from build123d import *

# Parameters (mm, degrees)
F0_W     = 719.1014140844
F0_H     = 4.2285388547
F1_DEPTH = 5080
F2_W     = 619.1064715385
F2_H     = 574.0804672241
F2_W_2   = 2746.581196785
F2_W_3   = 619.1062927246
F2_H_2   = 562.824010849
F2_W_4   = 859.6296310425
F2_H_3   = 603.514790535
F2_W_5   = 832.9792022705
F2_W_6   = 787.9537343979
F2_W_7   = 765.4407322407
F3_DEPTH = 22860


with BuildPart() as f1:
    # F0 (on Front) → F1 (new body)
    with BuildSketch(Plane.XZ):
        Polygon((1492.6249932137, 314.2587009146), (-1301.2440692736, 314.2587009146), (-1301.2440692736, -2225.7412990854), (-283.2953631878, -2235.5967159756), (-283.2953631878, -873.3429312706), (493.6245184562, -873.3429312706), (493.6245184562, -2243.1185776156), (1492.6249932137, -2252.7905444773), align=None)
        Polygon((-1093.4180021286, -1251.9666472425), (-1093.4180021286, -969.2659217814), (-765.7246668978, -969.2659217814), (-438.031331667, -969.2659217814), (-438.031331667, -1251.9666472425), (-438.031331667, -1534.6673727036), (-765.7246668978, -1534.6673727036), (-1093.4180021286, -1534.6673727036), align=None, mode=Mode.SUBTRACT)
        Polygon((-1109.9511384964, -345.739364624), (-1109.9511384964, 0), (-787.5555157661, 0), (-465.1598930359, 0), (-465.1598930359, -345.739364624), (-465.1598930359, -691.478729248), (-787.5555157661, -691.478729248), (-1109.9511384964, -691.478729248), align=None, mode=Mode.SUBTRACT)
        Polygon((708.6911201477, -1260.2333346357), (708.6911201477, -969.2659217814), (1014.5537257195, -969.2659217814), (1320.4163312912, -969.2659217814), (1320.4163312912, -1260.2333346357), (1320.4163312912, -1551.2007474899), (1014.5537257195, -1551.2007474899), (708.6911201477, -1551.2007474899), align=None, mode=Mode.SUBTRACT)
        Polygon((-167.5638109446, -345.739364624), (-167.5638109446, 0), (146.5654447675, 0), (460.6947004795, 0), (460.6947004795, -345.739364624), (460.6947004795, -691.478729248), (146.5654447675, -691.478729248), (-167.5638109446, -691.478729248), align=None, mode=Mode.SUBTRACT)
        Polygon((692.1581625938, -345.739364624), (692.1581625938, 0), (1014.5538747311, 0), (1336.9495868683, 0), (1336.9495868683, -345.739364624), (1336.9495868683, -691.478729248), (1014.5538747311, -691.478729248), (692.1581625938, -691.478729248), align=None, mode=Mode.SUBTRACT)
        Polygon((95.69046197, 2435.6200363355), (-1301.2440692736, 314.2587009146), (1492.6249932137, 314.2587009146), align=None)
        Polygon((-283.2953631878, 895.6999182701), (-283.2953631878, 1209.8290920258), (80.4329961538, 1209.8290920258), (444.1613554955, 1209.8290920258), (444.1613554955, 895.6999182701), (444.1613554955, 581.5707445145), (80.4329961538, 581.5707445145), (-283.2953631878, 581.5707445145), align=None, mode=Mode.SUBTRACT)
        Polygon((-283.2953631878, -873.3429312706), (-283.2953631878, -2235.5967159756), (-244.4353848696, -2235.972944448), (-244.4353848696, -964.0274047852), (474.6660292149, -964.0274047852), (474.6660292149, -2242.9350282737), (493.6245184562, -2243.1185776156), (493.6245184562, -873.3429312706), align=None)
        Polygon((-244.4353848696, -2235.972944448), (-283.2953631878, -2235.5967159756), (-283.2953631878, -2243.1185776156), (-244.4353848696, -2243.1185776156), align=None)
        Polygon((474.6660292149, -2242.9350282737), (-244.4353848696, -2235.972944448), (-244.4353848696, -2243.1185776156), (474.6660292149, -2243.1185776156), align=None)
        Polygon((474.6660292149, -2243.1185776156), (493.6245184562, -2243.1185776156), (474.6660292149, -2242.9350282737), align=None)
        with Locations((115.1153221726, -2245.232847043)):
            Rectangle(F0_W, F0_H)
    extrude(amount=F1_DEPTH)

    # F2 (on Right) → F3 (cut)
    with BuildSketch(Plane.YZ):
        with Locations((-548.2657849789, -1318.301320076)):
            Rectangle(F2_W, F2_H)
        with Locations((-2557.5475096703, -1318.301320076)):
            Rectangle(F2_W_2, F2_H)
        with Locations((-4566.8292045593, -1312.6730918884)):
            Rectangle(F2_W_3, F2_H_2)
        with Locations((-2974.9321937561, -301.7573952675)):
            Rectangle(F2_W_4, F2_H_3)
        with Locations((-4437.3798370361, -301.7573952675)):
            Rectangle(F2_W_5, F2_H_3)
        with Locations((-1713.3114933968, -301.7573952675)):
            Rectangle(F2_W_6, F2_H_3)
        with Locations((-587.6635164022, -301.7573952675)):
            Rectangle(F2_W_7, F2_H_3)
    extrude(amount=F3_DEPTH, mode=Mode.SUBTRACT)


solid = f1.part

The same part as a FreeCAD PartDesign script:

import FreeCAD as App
import Part
import Sketcher

V = App.Vector
Q = App.Units.Quantity


def add_polygon(sketch, points):
    """Adds a closed chain of lines whose ends are joined by coincident constraints."""
    first, n = sketch.GeometryCount, len(points)
    for a, b in zip(points, points[1:] + points[:1]):
        sketch.addGeometry(Part.LineSegment(App.Vector(*a, 0), App.Vector(*b, 0)), False)
    for i in range(n):
        sketch.addConstraint(Sketcher.Constraint("Coincident", first + i, 2, first + (i + 1) % n, 1))

doc = App.newDocument("Part")
body = doc.addObject("PartDesign::Body", "Body")

# Sketch on XZ plane
sketch1 = body.newObject("Sketcher::SketchObject", "Sketch")
sketch1.AttachmentSupport = (doc.getObject("XZ_Plane"), [""])
sketch1.MapMode = "FlatFace"
add_polygon(sketch1, [(-283.3, -2243.1), (-244.4, -2243.1), (-244.4, -2247.3), (474.7, -2247.3), (474.7, -2243.1), (493.6, -2243.1), (1492.6, -2252.8), (1492.6, 314.3), (95.7, 2435.6), (-1301.2, 314.3), (-1301.2, -2225.7), (-283.3, -2235.6)])  # lines 0-11
add_polygon(sketch1, [(-1093.4, -1534.7), (-1093.4, -969.3), (-438, -969.3), (-438, -1534.7)])  # lines 12-15
add_polygon(sketch1, [(474.7, -964), (474.7, -2242.9), (-244.4, -2236), (-244.4, -964)])  # lines 16-19
add_polygon(sketch1, [(708.7, -1551.2), (708.7, -969.3), (1320.4, -969.3), (1320.4, -1551.2)])  # lines 20-23
add_polygon(sketch1, [(-1110, -691.5), (-1110, 0), (-465.2, 0), (-465.2, -691.5)])  # lines 24-27
add_polygon(sketch1, [(-283.3, 581.6), (-283.3, 1209.8), (444.2, 1209.8), (444.2, 581.6)])  # lines 28-31
add_polygon(sketch1, [(-167.6, -691.5), (-167.6, 0), (460.7, 0), (460.7, -691.5)])  # lines 32-35
add_polygon(sketch1, [(692.2, -691.5), (692.2, 0), (1336.9, 0), (1336.9, -691.5)])  # lines 36-39
sketch1.addConstraint([
    Sketcher.Constraint("Horizontal", 0),
    Sketcher.Constraint("Vertical", 1),
    Sketcher.Constraint("Horizontal", 2),
    Sketcher.Constraint("Vertical", 3),
    Sketcher.Constraint("Horizontal", 4),
    Sketcher.Constraint("Vertical", 6),
    Sketcher.Constraint("Vertical", 9),
    Sketcher.Constraint("Vertical", 11),
    Sketcher.Constraint("Vertical", 12),
    Sketcher.Constraint("Horizontal", 13),
    Sketcher.Constraint("Vertical", 14),
    Sketcher.Constraint("Horizontal", 15),
    Sketcher.Constraint("Vertical", 16),
    Sketcher.Constraint("Vertical", 18),
    Sketcher.Constraint("Horizontal", 19),
    Sketcher.Constraint("Vertical", 20),
    Sketcher.Constraint("Horizontal", 21),
    Sketcher.Constraint("Vertical", 22),
    Sketcher.Constraint("Horizontal", 23),
    Sketcher.Constraint("Vertical", 24),
    Sketcher.Constraint("Horizontal", 25),
    Sketcher.Constraint("Vertical", 26),
    Sketcher.Constraint("Horizontal", 27),
    Sketcher.Constraint("Vertical", 28),
    Sketcher.Constraint("Horizontal", 29),
    Sketcher.Constraint("Vertical", 30),
    Sketcher.Constraint("Horizontal", 31),
    Sketcher.Constraint("Vertical", 32),
    Sketcher.Constraint("Horizontal", 33),
    Sketcher.Constraint("Vertical", 34),
    Sketcher.Constraint("Horizontal", 35),
    Sketcher.Constraint("Vertical", 36),
    Sketcher.Constraint("Horizontal", 37),
    Sketcher.Constraint("Vertical", 38),
    Sketcher.Constraint("Horizontal", 39),
    Sketcher.Constraint("PointOnObject", 24, 2, -1),
    Sketcher.Constraint("PointOnObject", 32, 2, -1),
    Sketcher.Constraint("PointOnObject", 36, 2, -1),
    Sketcher.Constraint("Parallel", 5, 10),
    Sketcher.Constraint("Parallel", 10, 17),
    Sketcher.Constraint("Horizontal", 0, 2, 3, 2),
    Sketcher.Constraint("Horizontal", 6, 2, 8, 2),
    Sketcher.Constraint("Horizontal", 13, 2, 20, 2),
    Sketcher.Constraint("Horizontal", 27, 2, 34, 2),
    Sketcher.Constraint("Horizontal", 35, 2, 38, 2),
    Sketcher.Constraint("Vertical", 3, 2, 16, 2),
    Sketcher.Constraint("Vertical", 1, 2, 17, 2),
    Sketcher.Constraint("Vertical", 11, 2, 28, 2),
    Sketcher.Constraint("Equal", 7, 8),
    Sketcher.Constraint("DistanceY", 9, 2, 9, 1, Q("100 in")),
    Sketcher.Constraint("Distance", 7, Q("100 in")),
    Sketcher.Constraint("DistanceX", 8, 2, 25, 2, Q("32.9166999 in")),
    Sketcher.Constraint("DistanceX", 0, 1, 0, 2, Q("38.859978 mm")),
    Sketcher.Constraint("DistanceX", 4, 1, 4, 2, Q("18.958489 mm")),
    Sketcher.Constraint("DistanceX", 13, 1, 13, 2, Q("655.38667 mm")),
    Sketcher.Constraint("DistanceX", 21, 1, 21, 2, Q("611.725211 mm")),
    Sketcher.Constraint("DistanceX", 29, 1, 29, 2, Q("727.456719 mm")),
    Sketcher.Constraint("DistanceX", 33, 1, 33, 2, Q("628.258511 mm")),
    Sketcher.Constraint("DistanceY", 1, 2, 1, 1, Q("4.228539 mm")),
    Sketcher.Constraint("DistanceY", 11, 2, 11, 1, Q("7.521862 mm")),
    Sketcher.Constraint("DistanceY", 12, 1, 12, 2, Q("565.401451 mm")),
    Sketcher.Constraint("DistanceY", 18, 1, 18, 2, Q("1271.94554 mm")),
    Sketcher.Constraint("DistanceY", 24, 1, 24, 2, Q("691.478729 mm")),
    Sketcher.Constraint("DistanceY", -1, 1, 6, 2, Q("314.258701 mm")),
    Sketcher.Constraint("DistanceX", -1, 1, 33, 2, Q("460.6947 mm")),
    Sketcher.Constraint("DistanceX", 8, 2, 3, 2, Q("1775.910098 mm")),
    Sketcher.Constraint("DistanceX", 4, 2, 20, 2, Q("215.066602 mm")),
    Sketcher.Constraint("DistanceX", 2, 1, 2, 2, Q("719.101414 mm")),
    Sketcher.Constraint("DistanceX", 25, 1, 25, 2, Q("644.791245 mm")),
    Sketcher.Constraint("DistanceX", 37, 1, 37, 2, Q("644.791424 mm")),
    Sketcher.Constraint("DistanceY", 6, 1, 6, 2, Q("2567.049245 mm")),
    Sketcher.Constraint("DistanceY", 20, 1, 20, 2, Q("581.934826 mm")),
    Sketcher.Constraint("DistanceY", 28, 1, 28, 2, Q("628.258348 mm")),
    Sketcher.Constraint("DistanceX", -1, 1, 2, 2, Q("474.666029 mm")),
    Sketcher.Constraint("DistanceX", -1, 1, 7, 2, Q("95.690462 mm")),
    Sketcher.Constraint("DistanceY", 12, 2, -1, 1, Q("969.265922 mm")),
    Sketcher.Constraint("DistanceX", 13, 2, -1, 1, Q("438.031332 mm")),
    Sketcher.Constraint("DistanceY", 16, 2, -1, 1, Q("2242.935028 mm")),
    Sketcher.Constraint("DistanceY", 8, 2, 28, 2, Q("895.570391 mm")),
    Sketcher.Constraint("DistanceX", 36, 2, 6, 2, Q("800.466831 mm")),
])
pad1 = body.newObject("PartDesign::Pad", "Pad")
pad1.Profile = sketch1
pad1.Length = Q("200 in")

# Sketch on YZ plane
sketch2 = body.newObject("Sketcher::SketchObject", "Sketch001")
sketch2.AttachmentSupport = (doc.getObject("YZ_Plane"), [""])
sketch2.MapMode = "FlatFace"
add_polygon(sketch2, [(-858, -1031), (-858, -1605), (-239, -1605), (-239, -1031)])  # lines 0-3
add_polygon(sketch2, [(-3931, -1031), (-3931, -1605), (-1184, -1605), (-1184, -1031)])  # lines 4-7
add_polygon(sketch2, [(-4876, -1031), (-4876, -1594), (-4257, -1594), (-4257, -1031)])  # lines 8-11
add_polygon(sketch2, [(-3405, 0), (-3405, -604), (-2545, -604), (-2545, 0)])  # lines 12-15
add_polygon(sketch2, [(-4854, 0), (-4854, -604), (-4021, -604), (-4021, 0)])  # lines 16-19
add_polygon(sketch2, [(-2107, 0), (-2107, -604), (-1319, -604), (-1319, 0)])  # lines 20-23
add_polygon(sketch2, [(-970, 0), (-970, -604), (-205, -604), (-205, 0)])  # lines 24-27
sketch2.addConstraint([
    Sketcher.Constraint("Vertical", 0),
    Sketcher.Constraint("Horizontal", 1),
    Sketcher.Constraint("Vertical", 2),
    Sketcher.Constraint("Horizontal", 3),
    Sketcher.Constraint("Vertical", 4),
    Sketcher.Constraint("Horizontal", 5),
    Sketcher.Constraint("Vertical", 6),
    Sketcher.Constraint("Horizontal", 7),
    Sketcher.Constraint("Vertical", 8),
    Sketcher.Constraint("Horizontal", 9),
    Sketcher.Constraint("Vertical", 10),
    Sketcher.Constraint("Horizontal", 11),
    Sketcher.Constraint("Vertical", 12),
    Sketcher.Constraint("Horizontal", 13),
    Sketcher.Constraint("Vertical", 14),
    Sketcher.Constraint("Horizontal", 15),
    Sketcher.Constraint("Vertical", 16),
    Sketcher.Constraint("Horizontal", 17),
    Sketcher.Constraint("Vertical", 18),
    Sketcher.Constraint("Horizontal", 19),
    Sketcher.Constraint("Vertical", 20),
    Sketcher.Constraint("Horizontal", 21),
    Sketcher.Constraint("Vertical", 22),
    Sketcher.Constraint("Horizontal", 23),
    Sketcher.Constraint("Vertical", 24),
    Sketcher.Constraint("Horizontal", 25),
    Sketcher.Constraint("Vertical", 26),
    Sketcher.Constraint("Horizontal", 27),
    Sketcher.Constraint("PointOnObject", 14, 2, -1),
    Sketcher.Constraint("PointOnObject", 18, 2, -1),
    Sketcher.Constraint("PointOnObject", 22, 2, -1),
    Sketcher.Constraint("PointOnObject", 26, 2, -1),
    Sketcher.Constraint("Horizontal", 1, 2, 4, 2),
    Sketcher.Constraint("Horizontal", 3, 2, 6, 2),
    Sketcher.Constraint("Horizontal", 7, 2, 10, 2),
    Sketcher.Constraint("Horizontal", 13, 2, 16, 2),
    Sketcher.Constraint("Horizontal", 17, 2, 20, 2),
    Sketcher.Constraint("Horizontal", 21, 2, 24, 2),
    Sketcher.Constraint("DistanceX", 1, 1, 1, 2, Q("619.106472 mm")),
    Sketcher.Constraint("DistanceX", 13, 1, 13, 2, Q("859.629631 mm")),
    Sketcher.Constraint("DistanceY", 8, 2, 8, 1, Q("562.824011 mm")),
    Sketcher.Constraint("DistanceY", 12, 2, 12, 1, Q("603.514791 mm")),
    Sketcher.Constraint("DistanceX", 7, 2, 12, 2, Q("526.091099 mm")),
    Sketcher.Constraint("DistanceX", 2, 2, 25, 2, Q("33.769399 mm")),
    Sketcher.Constraint("DistanceX", 5, 1, 5, 2, Q("2746.581197 mm")),
    Sketcher.Constraint("DistanceX", 9, 1, 9, 2, Q("619.106293 mm")),
    Sketcher.Constraint("DistanceX", 17, 1, 17, 2, Q("832.979202 mm")),
    Sketcher.Constraint("DistanceX", 21, 1, 21, 2, Q("787.953734 mm")),
    Sketcher.Constraint("DistanceX", 25, 1, 25, 2, Q("765.440732 mm")),
    Sketcher.Constraint("DistanceY", 0, 2, 0, 1, Q("574.080467 mm")),
    Sketcher.Constraint("DistanceX", 0, 2, -1, 1, Q("857.819021 mm")),
    Sketcher.Constraint("DistanceX", 4, 2, -1, 1, Q("3930.838108 mm")),
    Sketcher.Constraint("DistanceX", 8, 2, -1, 1, Q("4876.382351 mm")),
    Sketcher.Constraint("DistanceX", 16, 2, -1, 1, Q("4853.869438 mm")),
    Sketcher.Constraint("DistanceX", 20, 2, -1, 1, Q("2107.288361 mm")),
    Sketcher.Constraint("DistanceY", 0, 2, -1, 1, Q("1605.341554 mm")),
])
pocket1 = body.newObject("PartDesign::Pocket", "Pocket")
pocket1.Profile = sketch2
pocket1.Length = Q("900 in")
pocket1.Reversed = True

doc.recompute()
